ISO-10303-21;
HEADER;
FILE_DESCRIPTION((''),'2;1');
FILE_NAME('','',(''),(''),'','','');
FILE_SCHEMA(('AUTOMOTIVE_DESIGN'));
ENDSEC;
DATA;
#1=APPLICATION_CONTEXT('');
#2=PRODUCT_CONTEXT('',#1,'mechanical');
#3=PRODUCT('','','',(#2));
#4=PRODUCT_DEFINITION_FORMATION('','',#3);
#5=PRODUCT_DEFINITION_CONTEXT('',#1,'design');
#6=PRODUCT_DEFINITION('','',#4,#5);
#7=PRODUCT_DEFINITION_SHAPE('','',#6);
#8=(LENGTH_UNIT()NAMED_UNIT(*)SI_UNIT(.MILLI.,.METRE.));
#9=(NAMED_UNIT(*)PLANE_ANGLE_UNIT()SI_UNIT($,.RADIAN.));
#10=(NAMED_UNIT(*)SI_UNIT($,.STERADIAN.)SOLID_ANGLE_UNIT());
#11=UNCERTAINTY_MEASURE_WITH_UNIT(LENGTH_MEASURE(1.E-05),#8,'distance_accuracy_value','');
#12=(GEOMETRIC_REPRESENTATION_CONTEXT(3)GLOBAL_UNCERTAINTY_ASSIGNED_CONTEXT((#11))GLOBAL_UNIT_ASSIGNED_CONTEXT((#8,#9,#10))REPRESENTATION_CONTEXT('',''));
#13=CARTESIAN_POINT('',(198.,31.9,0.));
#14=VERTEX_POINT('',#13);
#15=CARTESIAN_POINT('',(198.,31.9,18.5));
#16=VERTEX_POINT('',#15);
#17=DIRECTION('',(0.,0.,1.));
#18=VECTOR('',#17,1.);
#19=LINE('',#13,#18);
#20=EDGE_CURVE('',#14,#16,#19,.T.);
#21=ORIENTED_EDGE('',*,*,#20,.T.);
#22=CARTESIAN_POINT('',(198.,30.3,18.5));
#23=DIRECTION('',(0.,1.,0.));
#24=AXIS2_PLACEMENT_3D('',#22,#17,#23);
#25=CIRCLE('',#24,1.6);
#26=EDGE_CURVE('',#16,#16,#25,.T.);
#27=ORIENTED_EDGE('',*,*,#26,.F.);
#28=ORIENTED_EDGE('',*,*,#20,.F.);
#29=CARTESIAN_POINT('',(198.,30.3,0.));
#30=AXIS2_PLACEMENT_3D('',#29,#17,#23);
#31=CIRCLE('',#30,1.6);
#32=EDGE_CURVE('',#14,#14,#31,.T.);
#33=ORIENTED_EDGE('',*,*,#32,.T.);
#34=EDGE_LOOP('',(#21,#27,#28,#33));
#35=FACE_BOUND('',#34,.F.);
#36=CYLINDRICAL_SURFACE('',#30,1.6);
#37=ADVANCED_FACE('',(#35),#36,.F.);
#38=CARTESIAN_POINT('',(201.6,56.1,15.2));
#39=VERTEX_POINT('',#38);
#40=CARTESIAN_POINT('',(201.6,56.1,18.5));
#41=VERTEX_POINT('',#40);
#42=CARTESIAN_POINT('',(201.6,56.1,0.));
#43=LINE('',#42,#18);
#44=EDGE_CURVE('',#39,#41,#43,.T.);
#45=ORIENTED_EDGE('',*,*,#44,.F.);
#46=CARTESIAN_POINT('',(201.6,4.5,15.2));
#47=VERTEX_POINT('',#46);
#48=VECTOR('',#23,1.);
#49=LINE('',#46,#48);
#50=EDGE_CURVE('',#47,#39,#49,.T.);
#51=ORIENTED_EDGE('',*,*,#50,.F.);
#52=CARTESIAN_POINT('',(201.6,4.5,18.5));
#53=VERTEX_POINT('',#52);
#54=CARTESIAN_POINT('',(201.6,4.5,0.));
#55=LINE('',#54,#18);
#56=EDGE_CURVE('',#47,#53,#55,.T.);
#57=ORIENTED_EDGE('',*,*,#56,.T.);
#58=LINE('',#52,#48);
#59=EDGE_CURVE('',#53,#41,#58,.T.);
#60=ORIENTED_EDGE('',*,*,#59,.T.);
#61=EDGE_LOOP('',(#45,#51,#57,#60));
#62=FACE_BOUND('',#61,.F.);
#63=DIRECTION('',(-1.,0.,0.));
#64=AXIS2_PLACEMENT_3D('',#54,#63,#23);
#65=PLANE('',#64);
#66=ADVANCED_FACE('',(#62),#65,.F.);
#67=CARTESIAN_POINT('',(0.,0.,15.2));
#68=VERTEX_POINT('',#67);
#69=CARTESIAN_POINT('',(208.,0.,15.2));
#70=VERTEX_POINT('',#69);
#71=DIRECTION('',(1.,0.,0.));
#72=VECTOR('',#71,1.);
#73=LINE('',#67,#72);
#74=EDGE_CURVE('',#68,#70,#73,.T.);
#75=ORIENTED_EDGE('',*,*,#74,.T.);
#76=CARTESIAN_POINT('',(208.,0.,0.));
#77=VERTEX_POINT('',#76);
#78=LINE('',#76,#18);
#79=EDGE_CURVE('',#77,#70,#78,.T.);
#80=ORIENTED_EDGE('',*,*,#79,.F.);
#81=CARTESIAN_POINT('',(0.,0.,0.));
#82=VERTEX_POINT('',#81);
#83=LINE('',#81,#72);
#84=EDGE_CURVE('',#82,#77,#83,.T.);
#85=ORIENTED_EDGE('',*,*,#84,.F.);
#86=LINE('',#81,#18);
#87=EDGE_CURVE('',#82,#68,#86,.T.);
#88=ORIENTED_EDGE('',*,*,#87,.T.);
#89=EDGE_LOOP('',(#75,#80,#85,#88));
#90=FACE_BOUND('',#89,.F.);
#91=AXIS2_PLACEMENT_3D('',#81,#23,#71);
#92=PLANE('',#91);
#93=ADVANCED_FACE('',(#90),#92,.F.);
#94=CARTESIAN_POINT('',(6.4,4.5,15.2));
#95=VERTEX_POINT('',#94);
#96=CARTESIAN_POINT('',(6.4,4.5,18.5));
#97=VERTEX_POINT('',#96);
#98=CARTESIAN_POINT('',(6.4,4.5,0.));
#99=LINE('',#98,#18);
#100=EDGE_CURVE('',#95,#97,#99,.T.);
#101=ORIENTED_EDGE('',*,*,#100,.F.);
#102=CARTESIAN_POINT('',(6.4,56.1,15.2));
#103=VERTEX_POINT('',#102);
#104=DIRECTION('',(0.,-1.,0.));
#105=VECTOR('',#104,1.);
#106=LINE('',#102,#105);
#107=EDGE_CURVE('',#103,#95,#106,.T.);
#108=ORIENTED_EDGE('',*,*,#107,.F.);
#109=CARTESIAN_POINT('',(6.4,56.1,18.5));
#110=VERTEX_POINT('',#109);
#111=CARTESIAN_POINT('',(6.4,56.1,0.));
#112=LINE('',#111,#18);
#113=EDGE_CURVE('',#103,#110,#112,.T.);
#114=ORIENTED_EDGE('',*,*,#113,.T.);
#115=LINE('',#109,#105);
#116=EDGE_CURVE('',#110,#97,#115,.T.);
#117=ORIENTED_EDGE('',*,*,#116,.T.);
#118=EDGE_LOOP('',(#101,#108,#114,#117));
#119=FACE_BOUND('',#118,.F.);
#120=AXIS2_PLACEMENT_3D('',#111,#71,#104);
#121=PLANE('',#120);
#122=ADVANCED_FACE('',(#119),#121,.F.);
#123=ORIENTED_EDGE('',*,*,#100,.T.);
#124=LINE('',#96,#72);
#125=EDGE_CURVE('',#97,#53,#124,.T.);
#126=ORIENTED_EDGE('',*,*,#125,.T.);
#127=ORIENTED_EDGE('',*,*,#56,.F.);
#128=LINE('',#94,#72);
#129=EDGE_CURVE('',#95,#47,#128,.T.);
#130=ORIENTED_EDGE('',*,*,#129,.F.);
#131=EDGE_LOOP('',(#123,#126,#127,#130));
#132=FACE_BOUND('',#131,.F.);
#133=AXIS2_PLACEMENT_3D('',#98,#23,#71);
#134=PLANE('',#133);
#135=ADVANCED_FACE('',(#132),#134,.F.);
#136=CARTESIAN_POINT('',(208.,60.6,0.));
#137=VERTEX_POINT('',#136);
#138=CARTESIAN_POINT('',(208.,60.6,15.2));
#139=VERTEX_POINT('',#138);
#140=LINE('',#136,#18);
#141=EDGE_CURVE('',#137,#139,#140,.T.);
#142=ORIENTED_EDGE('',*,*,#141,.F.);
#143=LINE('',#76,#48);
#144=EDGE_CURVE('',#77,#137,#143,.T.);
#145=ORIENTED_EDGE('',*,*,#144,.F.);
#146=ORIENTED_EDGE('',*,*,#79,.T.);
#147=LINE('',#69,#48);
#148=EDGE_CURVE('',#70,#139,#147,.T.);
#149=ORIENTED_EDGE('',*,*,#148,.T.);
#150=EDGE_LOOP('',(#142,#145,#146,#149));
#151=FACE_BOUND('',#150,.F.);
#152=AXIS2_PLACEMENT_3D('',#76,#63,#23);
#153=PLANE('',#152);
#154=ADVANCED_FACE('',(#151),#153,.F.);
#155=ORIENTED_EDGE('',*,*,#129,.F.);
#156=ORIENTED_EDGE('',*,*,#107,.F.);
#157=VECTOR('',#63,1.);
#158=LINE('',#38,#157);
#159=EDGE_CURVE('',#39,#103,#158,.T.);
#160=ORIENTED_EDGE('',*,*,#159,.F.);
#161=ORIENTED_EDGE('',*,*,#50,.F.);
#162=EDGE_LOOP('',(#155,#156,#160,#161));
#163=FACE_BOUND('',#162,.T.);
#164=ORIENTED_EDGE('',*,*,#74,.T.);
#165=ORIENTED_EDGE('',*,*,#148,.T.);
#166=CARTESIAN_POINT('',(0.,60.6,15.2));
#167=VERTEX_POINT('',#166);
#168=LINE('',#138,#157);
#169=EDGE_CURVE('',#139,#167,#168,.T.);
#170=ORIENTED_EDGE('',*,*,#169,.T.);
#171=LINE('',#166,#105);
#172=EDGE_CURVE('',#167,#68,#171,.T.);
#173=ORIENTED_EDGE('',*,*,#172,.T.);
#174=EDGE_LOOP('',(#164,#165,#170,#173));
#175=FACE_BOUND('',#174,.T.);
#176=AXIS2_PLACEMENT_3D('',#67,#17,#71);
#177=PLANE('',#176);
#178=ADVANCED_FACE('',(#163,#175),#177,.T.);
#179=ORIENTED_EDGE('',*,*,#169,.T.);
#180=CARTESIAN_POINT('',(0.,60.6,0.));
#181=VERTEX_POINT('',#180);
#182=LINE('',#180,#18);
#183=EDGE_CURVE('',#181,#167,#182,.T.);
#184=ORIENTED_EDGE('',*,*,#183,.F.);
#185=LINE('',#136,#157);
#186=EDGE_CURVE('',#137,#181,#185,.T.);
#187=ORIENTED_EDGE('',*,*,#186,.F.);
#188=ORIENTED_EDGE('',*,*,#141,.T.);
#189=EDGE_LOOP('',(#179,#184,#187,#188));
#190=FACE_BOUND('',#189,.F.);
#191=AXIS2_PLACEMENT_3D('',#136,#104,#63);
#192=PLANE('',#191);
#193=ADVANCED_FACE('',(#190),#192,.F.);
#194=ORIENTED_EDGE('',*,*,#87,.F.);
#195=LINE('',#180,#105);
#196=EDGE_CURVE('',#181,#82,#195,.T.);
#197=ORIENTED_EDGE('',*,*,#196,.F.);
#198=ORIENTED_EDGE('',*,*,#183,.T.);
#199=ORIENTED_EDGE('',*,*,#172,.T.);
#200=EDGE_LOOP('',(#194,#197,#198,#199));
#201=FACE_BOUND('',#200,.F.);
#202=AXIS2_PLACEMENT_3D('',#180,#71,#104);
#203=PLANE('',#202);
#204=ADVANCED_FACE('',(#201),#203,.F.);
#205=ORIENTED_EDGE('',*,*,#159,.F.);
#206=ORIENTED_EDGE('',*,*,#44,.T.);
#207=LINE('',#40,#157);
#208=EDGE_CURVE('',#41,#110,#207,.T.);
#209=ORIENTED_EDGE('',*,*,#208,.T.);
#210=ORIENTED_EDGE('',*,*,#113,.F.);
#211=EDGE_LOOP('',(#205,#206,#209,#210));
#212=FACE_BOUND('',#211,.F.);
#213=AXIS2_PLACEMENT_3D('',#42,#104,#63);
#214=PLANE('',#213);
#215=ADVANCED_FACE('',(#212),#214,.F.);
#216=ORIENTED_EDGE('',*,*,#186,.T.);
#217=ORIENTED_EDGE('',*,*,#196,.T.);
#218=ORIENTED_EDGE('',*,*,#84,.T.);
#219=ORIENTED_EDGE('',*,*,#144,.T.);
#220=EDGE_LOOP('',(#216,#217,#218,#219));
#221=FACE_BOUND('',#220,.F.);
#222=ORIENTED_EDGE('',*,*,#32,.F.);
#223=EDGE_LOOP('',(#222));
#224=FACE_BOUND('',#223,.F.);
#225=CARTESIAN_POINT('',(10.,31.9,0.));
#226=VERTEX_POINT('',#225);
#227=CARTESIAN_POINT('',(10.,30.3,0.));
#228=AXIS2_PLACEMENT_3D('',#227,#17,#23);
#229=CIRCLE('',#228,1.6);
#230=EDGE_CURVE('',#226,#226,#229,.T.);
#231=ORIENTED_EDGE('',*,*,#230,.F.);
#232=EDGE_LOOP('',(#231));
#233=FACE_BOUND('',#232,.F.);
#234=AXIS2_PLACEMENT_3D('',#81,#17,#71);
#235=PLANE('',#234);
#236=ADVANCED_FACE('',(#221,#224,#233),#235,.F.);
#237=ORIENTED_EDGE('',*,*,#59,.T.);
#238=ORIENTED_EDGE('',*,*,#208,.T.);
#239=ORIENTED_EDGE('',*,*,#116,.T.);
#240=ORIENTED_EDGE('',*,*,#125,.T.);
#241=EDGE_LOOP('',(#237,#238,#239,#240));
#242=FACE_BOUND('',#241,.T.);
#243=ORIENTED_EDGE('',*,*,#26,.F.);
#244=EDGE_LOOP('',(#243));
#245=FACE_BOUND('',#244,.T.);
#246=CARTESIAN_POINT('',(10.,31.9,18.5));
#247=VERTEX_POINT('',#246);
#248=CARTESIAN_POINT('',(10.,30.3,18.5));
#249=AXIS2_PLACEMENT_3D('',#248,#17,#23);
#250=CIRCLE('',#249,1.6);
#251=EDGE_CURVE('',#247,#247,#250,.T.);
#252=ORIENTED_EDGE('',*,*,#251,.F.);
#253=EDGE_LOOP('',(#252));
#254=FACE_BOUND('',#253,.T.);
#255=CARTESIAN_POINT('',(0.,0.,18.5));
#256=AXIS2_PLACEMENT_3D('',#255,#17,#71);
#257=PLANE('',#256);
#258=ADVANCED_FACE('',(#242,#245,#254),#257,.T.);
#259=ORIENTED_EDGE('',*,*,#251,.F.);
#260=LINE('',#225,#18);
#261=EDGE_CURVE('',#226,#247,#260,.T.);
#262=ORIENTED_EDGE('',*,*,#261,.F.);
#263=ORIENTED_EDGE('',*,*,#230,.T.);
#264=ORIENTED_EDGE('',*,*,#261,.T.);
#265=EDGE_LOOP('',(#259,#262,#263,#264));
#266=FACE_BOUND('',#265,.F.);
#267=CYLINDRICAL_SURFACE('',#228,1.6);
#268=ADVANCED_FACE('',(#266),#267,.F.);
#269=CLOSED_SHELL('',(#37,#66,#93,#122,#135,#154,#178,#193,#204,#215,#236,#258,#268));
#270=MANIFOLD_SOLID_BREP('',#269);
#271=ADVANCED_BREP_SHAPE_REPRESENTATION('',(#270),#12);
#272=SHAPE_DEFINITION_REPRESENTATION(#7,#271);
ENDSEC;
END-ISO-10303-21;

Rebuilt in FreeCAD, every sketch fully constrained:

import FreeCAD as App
import Part
import Sketcher
Q = App.Units.Quantity

doc = App.newDocument("Part")
body = doc.addObject("PartDesign::Body", "Body")

sketch1 = body.newObject("Sketcher::SketchObject", "Sketch")
sketch1.AttachmentSupport = (doc.getObject("XY_Plane"), [""])
sketch1.MapMode = "FlatFace"
sketch1.addGeometry([
    Part.LineSegment(App.Vector(0, 61, 0), App.Vector(0, 0, 0)),
    Part.LineSegment(App.Vector(0, 0, 0), App.Vector(208, 0, 0)),
    Part.LineSegment(App.Vector(208, 0, 0), App.Vector(208, 61, 0)),
    Part.LineSegment(App.Vector(208, 61, 0), App.Vector(0, 61, 0)),
    Part.LineSegment(App.Vector(202, 4, 0), App.Vector(6, 4, 0)),
    Part.LineSegment(App.Vector(6, 4, 0), App.Vector(6, 56, 0)),
    Part.LineSegment(App.Vector(6, 56, 0), App.Vector(202, 56, 0)),
    Part.LineSegment(App.Vector(202, 56, 0), App.Vector(202, 4, 0)),
], False)
sketch1.addConstraint([
    Sketcher.Constraint("Coincident", 0, 2, 1, 1),
    Sketcher.Constraint("Coincident", 1, 2, 2, 1),
    Sketcher.Constraint("Coincident", 2, 2, 3, 1),
    Sketcher.Constraint("Coincident", 3, 2, 0, 1),
    Sketcher.Constraint("Coincident", 4, 2, 5, 1),
    Sketcher.Constraint("Coincident", 5, 2, 6, 1),
    Sketcher.Constraint("Coincident", 6, 2, 7, 1),
    Sketcher.Constraint("Coincident", 7, 2, 4, 1),
    Sketcher.Constraint("Vertical", 0),
    Sketcher.Constraint("Horizontal", 1),
    Sketcher.Constraint("Vertical", 2),
    Sketcher.Constraint("Horizontal", 3),
    Sketcher.Constraint("Horizontal", 4),
    Sketcher.Constraint("Vertical", 5),
    Sketcher.Constraint("Horizontal", 6),
    Sketcher.Constraint("Vertical", 7),
    Sketcher.Constraint("Coincident", 0, 2, -1, 1),
    Sketcher.Constraint("DistanceX", 1, 1, 1, 2, Q("208 mm")),
    Sketcher.Constraint("DistanceX", 4, 2, 4, 1, Q("195.2 mm")),
    Sketcher.Constraint("DistanceY", 0, 2, 0, 1, Q("60.6 mm")),
    Sketcher.Constraint("DistanceY", 5, 1, 5, 2, Q("51.6 mm")),
    Sketcher.Constraint("DistanceX", -1, 1, 4, 2, Q("6.4 mm")),
    Sketcher.Constraint("DistanceY", -1, 1, 4, 2, Q("4.5 mm")),
])
pad1 = body.newObject("PartDesign::Pad", "Pad")
pad1.Profile = sketch1
pad1.Length = 15.2

sketch2 = body.newObject("Sketcher::SketchObject", "Sketch001")
sketch2.AttachmentSupport = (doc.getObject("XY_Plane"), [""])
sketch2.MapMode = "FlatFace"
sketch2.addGeometry([
    Part.LineSegment(App.Vector(6, 56, 0), App.Vector(6, 4, 0)),
    Part.LineSegment(App.Vector(6, 4, 0), App.Vector(202, 4, 0)),
    Part.LineSegment(App.Vector(202, 4, 0), App.Vector(202, 56, 0)),
    Part.LineSegment(App.Vector(202, 56, 0), App.Vector(6, 56, 0)),
], False)
sketch2.addConstraint([
    Sketcher.Constraint("Coincident", 0, 2, 1, 1),
    Sketcher.Constraint("Coincident", 1, 2, 2, 1),
    Sketcher.Constraint("Coincident", 2, 2, 3, 1),
    Sketcher.Constraint("Coincident", 3, 2, 0, 1),
    Sketcher.Constraint("Vertical", 0),
    Sketcher.Constraint("Horizontal", 1),
    Sketcher.Constraint("Vertical", 2),
    Sketcher.Constraint("Horizontal", 3),
    Sketcher.Constraint("DistanceX", 1, 1, 1, 2, Q("195.2 mm")),
    Sketcher.Constraint("DistanceY", 0, 2, 0, 1, Q("51.6 mm")),
    Sketcher.Constraint("DistanceX", -1, 1, 0, 2, Q("6.4 mm")),
    Sketcher.Constraint("DistanceY", -1, 1, 0, 2, Q("4.5 mm")),
])
pad2 = body.newObject("PartDesign::Pad", "Pad001")
pad2.Profile = sketch2
pad2.Length = 18.5

sketch3 = body.newObject("Sketcher::SketchObject", "Sketch002")
sketch3.AttachmentSupport = (doc.getObject("XY_Plane"), [""])
sketch3.MapMode = "FlatFace"
sketch3.addGeometry([
    Part.Circle(App.Vector(198, 30.3, 0), App.Vector(0, 0, 1), 1.6),
    Part.Circle(App.Vector(10, 30.3, 0), App.Vector(0, 0, 1), 1.6),
], False)
sketch3.addConstraint([
    Sketcher.Constraint("Equal", 0, 1),
    Sketcher.Constraint("Horizontal", 0, 3, 1, 3),
    Sketcher.Constraint("Diameter", 0, Q("3.2 mm")),
    Sketcher.Constraint("DistanceX", -1, 1, 0, 3, Q("198 mm")),
    Sketcher.Constraint("DistanceX", -1, 1, 1, 3, Q("10 mm")),
    Sketcher.Constraint("DistanceY", -1, 1, 0, 3, Q("30.3 mm")),
])
doc.recompute()
hole = body.newObject("PartDesign::Hole", "Hole")
hole.Profile = sketch3
hole.ThreadType = "None"
hole.Diameter = 3.2
hole.DepthType = "ThroughAll"
hole.Reversed = True

doc.recompute()
